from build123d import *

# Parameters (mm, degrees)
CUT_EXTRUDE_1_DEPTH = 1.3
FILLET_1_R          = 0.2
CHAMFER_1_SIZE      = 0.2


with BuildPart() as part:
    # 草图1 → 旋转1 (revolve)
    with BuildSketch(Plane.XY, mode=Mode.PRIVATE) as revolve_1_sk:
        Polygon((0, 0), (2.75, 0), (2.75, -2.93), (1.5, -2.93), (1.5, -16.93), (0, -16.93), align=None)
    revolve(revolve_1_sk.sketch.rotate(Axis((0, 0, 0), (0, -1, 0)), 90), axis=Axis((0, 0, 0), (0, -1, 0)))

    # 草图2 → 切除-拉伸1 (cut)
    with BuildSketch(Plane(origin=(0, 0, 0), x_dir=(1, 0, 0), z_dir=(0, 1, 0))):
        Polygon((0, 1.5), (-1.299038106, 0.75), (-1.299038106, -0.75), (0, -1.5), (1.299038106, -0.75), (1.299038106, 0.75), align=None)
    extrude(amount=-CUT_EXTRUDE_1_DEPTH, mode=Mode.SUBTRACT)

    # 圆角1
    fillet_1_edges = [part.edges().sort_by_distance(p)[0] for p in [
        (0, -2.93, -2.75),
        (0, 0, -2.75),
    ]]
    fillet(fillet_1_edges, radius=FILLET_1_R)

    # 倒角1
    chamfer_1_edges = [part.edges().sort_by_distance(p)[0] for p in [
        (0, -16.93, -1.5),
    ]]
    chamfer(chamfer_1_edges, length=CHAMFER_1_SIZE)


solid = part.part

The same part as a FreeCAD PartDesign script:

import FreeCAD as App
import Part
import Sketcher
Q = App.Units.Quantity


def edges_at(feature, points):
    """Names of the edges that pass closest to the given points."""
    edges = feature.Shape.Edges
    near = lambda p: min(range(len(edges)), key=lambda i: edges[i].distToShape(Part.Vertex(*p))[0])
    return sorted({f"Edge{near(p) + 1}" for p in points})

doc = App.newDocument("Part")
params = doc.addObject("Spreadsheet::Sheet", "Params")
for row, (alias, value) in enumerate([
    ("sketch1_height", "14 mm"),
    ("sketch1_width", "1.5 mm"),
    ("sketch1_width2", "2.75 mm"),
    ("sketch1_height2", "16.93 mm"),
    ("revolution_angle", "360 deg"),
    ("sketch2_height", "1.5 mm"),
    ("pocket1_length", "1.3 mm"),
    ("fillet_radius", "0.2 mm"),
    ("chamfer_size", "0.2 mm"),
], start=1):
    params.set(f"A{row}", alias)
    params.set(f"B{row}", "=" + value)
    params.setAlias(f"B{row}", alias)

body = doc.addObject("PartDesign::Body", "Body")

# Sketch on XY plane
sketch1 = body.newObject("Sketcher::SketchObject", "Sketch")
sketch1.AttachmentSupport = (doc.getObject("XY_Plane"), [""])
sketch1.MapMode = "FlatFace"
sketch1.addGeometry(Part.LineSegment(App.Vector(2.8, 0, 0), App.Vector(0, 0, 0)), False)
sketch1.addGeometry(Part.LineSegment(App.Vector(0, 0, 0), App.Vector(0, -16.9, 0)), False)
sketch1.addGeometry(Part.LineSegment(App.Vector(0, -16.9, 0), App.Vector(1.5, -16.9, 0)), False)
sketch1.addGeometry(Part.LineSegment(App.Vector(1.5, -16.9, 0), App.Vector(1.5, -2.9, 0)), False)
sketch1.addGeometry(Part.LineSegment(App.Vector(1.5, -2.9, 0), App.Vector(2.8, -2.9, 0)), False)
sketch1.addGeometry(Part.LineSegment(App.Vector(2.8, -2.9, 0), App.Vector(2.8, 0, 0)), False)
sketch1.addConstraint(Sketcher.Constraint("Coincident", 0, 2, 1, 1))
sketch1.addConstraint(Sketcher.Constraint("Coincident", 1, 2, 2, 1))
sketch1.addConstraint(Sketcher.Constraint("Coincident", 2, 2, 3, 1))
sketch1.addConstraint(Sketcher.Constraint("Coincident", 3, 2, 4, 1))
sketch1.addConstraint(Sketcher.Constraint("Coincident", 4, 2, 5, 1))
sketch1.addConstraint(Sketcher.Constraint("Coincident", 5, 2, 0, 1))
sketch1.addConstraint(Sketcher.Constraint("Horizontal", 0))
sketch1.addConstraint(Sketcher.Constraint("Vertical", 1))
sketch1.addConstraint(Sketcher.Constraint("Horizontal", 2))
sketch1.addConstraint(Sketcher.Constraint("Vertical", 3))
sketch1.addConstraint(Sketcher.Constraint("Horizontal", 4))
sketch1.addConstraint(Sketcher.Constraint("Vertical", 5))
sketch1.addConstraint(Sketcher.Constraint("Coincident", 0, 2, -1, 1))
sketch1.addConstraint(Sketcher.Constraint("DistanceY", 3, 1, 3, 2, 14.0))
sketch1.addConstraint(Sketcher.Constraint("DistanceX", 2, 1, 2, 2, 1.5))
sketch1.addConstraint(Sketcher.Constraint("DistanceX", 0, 2, 0, 1, 2.75))
sketch1.addConstraint(Sketcher.Constraint("DistanceY", 1, 2, 1, 1, 16.93))
sketch1.setExpression("Constraints[13]", "Params.sketch1_height")
sketch1.setExpression("Constraints[14]", "Params.sketch1_width")
sketch1.setExpression("Constraints[15]", "Params.sketch1_width2")
sketch1.setExpression("Constraints[16]", "Params.sketch1_height2")
revolution = body.newObject("PartDesign::Revolution", "Revolution")
revolution.Profile = sketch1
revolution.ReferenceAxis = (sketch1, ["V_Axis"])
revolution.setExpression("Angle", "Params.revolution_angle")

# Sketch on XZ plane
sketch2 = body.newObject("Sketcher::SketchObject", "Sketch001")
sketch2.AttachmentSupport = (doc.getObject("XZ_Plane"), [""])
sketch2.MapMode = "FlatFace"
sketch2.addGeometry(Part.LineSegment(App.Vector(0, -1.5, 0), App.Vector(-1.3, -0.8, 0)), False)
sketch2.addGeometry(Part.LineSegment(App.Vector(-1.3, -0.8, 0), App.Vector(-1.3, 0.8, 0)), False)
sketch2.addGeometry(Part.LineSegment(App.Vector(-1.3, 0.8, 0), App.Vector(0, 1.5, 0)), False)
sketch2.addGeometry(Part.LineSegment(App.Vector(0, 1.5, 0), App.Vector(1.3, 0.8, 0)), False)
sketch2.addGeometry(Part.LineSegment(App.Vector(1.3, 0.8, 0), App.Vector(1.3, -0.8, 0)), False)
sketch2.addGeometry(Part.LineSegment(App.Vector(1.3, -0.8, 0), App.Vector(0, -1.5, 0)), False)
sketch2.addConstraint(Sketcher.Constraint("Coincident", 0, 2, 1, 1))
sketch2.addConstraint(Sketcher.Constraint("Coincident", 1, 2, 2, 1))
sketch2.addConstraint(Sketcher.Constraint("Coincident", 2, 2, 3, 1))
sketch2.addConstraint(Sketcher.Constraint("Coincident", 3, 2, 4, 1))
sketch2.addConstraint(Sketcher.Constraint("Coincident", 4, 2, 5, 1))
sketch2.addConstraint(Sketcher.Constraint("Coincident", 5, 2, 0, 1))
sketch2.addConstraint(Sketcher.Constraint("Vertical", 1))
sketch2.addConstraint(Sketcher.Constraint("Vertical", 4))
sketch2.addConstraint(Sketcher.Constraint("Symmetric", 0, 2, 3, 2, -1, 1))
sketch2.addConstraint(Sketcher.Constraint("Symmetric", 2, 2, 5, 2, -1, 1))
sketch2.addConstraint(Sketcher.Constraint("PointOnObject", 2, 2, -2))
sketch2.addConstraint(Sketcher.Constraint("Parallel", 2, 5))
sketch2.addConstraint(Sketcher.Constraint("Horizontal", 1, 2, 3, 2))
sketch2.addConstraint(Sketcher.Constraint("Angle", 0, Q("150 deg")))
sketch2.addConstraint(Sketcher.Constraint("DistanceY", 1, 1, 1, 2, 1.5))
sketch2.addConstraint(Sketcher.Constraint("DistanceY", 5, 2, 2, 2, 3.0))
sketch2.setExpression("Constraints[14]", "Params.sketch2_height")
pocket1 = body.newObject("PartDesign::Pocket", "Pocket")
pocket1.Profile = sketch2
pocket1.setExpression("Length", "Params.pocket1_length")
pocket1.Reversed = True
doc.recompute()

fillet = body.newObject("PartDesign::Fillet", "Fillet")
fillet.Base = (pocket1, edges_at(pocket1, [(0, -2.93, -2.75), (0, 0, -2.75)]))
fillet.setExpression("Radius", "Params.fillet_radius")
doc.recompute()

chamfer = body.newObject("PartDesign::Chamfer", "Chamfer")
chamfer.Base = (fillet, edges_at(fillet, [(0, -16.93, -1.5)]))
chamfer.setExpression("Size", "Params.chamfer_size")

doc.recompute()
